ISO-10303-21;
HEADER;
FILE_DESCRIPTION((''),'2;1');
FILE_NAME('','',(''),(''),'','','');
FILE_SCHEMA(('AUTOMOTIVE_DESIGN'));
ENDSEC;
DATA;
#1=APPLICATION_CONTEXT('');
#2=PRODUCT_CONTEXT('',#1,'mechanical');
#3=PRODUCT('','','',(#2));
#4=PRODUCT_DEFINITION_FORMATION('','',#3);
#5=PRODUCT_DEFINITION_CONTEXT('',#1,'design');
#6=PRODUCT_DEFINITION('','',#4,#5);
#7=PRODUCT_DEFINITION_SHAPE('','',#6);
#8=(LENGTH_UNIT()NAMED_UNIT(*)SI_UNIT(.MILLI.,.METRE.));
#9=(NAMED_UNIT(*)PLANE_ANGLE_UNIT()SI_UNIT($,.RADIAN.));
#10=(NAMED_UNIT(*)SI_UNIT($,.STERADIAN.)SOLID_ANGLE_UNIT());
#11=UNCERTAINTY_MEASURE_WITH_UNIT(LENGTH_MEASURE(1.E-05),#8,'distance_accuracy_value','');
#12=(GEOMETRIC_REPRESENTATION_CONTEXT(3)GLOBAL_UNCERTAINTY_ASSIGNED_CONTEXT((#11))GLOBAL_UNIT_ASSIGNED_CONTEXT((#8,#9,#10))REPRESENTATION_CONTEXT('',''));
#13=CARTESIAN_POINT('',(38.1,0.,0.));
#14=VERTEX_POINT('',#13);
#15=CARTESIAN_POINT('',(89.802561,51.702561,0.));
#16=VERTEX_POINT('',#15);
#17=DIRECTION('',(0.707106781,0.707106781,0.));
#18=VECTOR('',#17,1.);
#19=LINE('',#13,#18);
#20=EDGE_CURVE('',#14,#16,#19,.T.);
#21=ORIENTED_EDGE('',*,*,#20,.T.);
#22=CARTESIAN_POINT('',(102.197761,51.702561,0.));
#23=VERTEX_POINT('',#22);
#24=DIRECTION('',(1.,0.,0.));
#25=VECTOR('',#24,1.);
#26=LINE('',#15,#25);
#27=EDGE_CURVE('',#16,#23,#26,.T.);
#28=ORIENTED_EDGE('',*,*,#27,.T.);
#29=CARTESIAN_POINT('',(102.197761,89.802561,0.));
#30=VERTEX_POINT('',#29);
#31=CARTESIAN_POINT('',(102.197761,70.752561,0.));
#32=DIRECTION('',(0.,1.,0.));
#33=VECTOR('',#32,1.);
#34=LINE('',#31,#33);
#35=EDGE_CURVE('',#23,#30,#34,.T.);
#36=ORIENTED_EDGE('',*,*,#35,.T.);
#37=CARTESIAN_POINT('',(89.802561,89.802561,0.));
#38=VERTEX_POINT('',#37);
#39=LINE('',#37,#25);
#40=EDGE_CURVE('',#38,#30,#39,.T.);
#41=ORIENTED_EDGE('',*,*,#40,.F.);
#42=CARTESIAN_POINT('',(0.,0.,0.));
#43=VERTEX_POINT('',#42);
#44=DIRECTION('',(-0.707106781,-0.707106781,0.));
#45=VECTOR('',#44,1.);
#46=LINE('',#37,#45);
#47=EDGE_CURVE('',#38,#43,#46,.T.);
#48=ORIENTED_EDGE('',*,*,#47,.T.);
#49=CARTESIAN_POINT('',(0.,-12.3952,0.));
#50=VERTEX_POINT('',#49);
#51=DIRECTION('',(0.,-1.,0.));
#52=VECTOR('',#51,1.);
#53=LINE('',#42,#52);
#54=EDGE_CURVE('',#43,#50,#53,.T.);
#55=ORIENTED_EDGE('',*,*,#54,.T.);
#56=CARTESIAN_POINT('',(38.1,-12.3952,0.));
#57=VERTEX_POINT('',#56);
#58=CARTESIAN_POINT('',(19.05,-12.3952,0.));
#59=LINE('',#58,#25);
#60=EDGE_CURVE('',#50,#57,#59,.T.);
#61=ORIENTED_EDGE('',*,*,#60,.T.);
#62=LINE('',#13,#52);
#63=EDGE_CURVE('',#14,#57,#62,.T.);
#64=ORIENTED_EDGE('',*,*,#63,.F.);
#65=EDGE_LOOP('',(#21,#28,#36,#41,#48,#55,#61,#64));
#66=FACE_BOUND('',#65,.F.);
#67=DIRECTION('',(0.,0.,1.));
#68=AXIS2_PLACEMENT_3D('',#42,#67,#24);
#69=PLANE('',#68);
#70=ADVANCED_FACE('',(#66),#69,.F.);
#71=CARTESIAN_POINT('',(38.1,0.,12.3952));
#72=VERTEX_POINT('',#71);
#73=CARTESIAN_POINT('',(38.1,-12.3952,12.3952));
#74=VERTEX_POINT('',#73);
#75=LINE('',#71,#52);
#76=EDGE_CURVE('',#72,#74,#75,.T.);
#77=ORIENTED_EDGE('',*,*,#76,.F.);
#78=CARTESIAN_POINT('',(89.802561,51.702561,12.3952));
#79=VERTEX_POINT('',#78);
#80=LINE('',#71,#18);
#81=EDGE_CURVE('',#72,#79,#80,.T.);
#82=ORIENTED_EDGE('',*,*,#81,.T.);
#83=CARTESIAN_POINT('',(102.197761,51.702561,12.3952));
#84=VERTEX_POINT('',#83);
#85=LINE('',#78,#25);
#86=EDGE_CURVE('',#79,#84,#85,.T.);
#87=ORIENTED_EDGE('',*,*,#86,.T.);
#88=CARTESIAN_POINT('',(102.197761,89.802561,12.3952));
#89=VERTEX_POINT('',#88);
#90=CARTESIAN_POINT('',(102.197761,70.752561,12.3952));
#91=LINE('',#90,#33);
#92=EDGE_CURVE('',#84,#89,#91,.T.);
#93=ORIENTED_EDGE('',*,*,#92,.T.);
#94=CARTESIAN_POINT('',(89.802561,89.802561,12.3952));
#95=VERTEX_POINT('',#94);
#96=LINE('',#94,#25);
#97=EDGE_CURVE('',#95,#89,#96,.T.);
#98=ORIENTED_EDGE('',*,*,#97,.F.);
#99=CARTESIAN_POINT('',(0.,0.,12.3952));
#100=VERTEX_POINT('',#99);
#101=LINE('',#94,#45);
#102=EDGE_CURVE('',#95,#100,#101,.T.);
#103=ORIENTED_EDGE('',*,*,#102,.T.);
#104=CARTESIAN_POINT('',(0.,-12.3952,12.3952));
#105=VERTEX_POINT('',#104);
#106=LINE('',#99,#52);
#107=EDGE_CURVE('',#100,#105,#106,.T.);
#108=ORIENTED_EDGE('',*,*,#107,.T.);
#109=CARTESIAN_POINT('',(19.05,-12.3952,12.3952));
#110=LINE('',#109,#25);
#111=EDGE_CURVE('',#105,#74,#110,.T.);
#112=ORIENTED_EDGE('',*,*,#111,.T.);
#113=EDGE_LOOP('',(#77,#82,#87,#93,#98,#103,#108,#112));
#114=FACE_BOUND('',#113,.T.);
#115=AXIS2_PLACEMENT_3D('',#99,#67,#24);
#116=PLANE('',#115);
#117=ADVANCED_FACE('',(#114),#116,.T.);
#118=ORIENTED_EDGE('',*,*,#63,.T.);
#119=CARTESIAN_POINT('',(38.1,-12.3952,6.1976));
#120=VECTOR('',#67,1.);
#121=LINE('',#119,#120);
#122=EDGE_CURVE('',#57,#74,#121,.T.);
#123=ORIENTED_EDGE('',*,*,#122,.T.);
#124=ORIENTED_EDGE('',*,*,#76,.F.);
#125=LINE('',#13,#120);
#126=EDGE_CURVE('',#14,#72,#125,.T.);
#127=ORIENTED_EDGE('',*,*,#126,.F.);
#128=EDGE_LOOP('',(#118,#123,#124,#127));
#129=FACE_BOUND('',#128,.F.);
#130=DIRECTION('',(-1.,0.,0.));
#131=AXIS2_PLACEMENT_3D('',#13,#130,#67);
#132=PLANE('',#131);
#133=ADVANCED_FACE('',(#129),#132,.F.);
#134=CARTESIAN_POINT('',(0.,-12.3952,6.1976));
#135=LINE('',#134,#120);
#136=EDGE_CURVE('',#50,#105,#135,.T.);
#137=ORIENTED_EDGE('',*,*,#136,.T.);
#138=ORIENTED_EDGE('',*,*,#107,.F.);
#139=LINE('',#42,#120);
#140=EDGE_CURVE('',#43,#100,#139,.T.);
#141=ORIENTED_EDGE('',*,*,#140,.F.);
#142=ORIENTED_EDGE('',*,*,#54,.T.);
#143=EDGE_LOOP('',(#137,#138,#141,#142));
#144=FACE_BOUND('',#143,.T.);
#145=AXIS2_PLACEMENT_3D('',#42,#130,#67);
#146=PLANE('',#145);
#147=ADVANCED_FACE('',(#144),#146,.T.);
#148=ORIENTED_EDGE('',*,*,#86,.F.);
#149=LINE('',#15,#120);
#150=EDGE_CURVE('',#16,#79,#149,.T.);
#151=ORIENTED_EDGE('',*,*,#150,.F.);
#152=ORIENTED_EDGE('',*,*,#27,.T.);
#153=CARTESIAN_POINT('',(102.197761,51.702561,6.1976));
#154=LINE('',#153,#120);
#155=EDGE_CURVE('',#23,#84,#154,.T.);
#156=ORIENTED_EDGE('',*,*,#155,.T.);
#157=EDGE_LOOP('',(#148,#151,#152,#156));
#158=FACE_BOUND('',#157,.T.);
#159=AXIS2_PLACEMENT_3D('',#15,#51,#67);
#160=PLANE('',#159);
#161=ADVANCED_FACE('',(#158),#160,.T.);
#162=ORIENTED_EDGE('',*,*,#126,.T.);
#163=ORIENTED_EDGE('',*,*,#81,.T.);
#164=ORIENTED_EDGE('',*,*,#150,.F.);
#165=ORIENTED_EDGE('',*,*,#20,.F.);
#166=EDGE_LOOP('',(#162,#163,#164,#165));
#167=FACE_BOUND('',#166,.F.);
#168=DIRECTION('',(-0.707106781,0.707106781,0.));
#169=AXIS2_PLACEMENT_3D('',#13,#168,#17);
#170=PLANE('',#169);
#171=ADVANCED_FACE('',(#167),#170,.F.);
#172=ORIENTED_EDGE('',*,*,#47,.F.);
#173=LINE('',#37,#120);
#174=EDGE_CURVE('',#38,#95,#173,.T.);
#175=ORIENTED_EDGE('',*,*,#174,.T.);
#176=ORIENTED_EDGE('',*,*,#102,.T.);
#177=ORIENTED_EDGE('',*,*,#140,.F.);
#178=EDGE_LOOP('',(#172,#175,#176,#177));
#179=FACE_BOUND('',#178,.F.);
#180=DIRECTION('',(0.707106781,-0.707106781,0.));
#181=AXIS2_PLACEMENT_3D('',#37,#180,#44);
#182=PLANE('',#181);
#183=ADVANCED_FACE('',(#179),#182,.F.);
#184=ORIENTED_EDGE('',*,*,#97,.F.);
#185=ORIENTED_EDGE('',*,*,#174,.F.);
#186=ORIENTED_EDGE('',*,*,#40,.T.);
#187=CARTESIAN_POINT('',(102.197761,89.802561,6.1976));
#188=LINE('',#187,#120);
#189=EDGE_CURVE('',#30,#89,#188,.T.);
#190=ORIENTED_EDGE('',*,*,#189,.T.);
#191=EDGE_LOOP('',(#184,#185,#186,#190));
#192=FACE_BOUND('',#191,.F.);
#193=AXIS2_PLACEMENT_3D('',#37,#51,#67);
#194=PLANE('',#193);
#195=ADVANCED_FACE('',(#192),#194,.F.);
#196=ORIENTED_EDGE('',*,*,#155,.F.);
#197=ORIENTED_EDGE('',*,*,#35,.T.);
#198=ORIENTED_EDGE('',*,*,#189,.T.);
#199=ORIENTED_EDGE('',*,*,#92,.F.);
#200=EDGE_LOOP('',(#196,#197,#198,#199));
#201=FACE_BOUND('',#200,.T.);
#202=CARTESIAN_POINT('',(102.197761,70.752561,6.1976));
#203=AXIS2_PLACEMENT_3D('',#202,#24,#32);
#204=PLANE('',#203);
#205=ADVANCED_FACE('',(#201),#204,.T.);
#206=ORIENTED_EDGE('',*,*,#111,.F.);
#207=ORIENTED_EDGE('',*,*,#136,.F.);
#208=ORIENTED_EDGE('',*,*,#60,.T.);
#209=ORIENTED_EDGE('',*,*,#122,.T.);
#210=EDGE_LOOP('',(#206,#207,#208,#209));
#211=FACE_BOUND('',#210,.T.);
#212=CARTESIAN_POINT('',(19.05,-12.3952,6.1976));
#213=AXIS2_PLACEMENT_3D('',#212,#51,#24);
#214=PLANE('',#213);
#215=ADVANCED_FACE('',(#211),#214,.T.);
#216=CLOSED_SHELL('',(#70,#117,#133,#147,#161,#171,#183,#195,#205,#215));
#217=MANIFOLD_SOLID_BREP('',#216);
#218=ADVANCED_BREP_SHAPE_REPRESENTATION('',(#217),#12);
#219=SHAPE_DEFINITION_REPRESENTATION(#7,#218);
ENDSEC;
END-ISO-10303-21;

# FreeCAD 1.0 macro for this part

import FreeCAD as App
import Part
import Sketcher
from FreeCAD import Vector
Q = App.Units.Quantity


def add_polygon(sketch, points):
    """Adds a closed chain of lines whose ends are joined by coincident constraints."""
    first, n = sketch.GeometryCount, len(points)
    for a, b in zip(points, points[1:] + points[:1]):
        sketch.addGeometry(Part.LineSegment(App.Vector(*a, 0), App.Vector(*b, 0)), False)
    for i in range(n):
        sketch.addConstraint(Sketcher.Constraint("Coincident", first + i, 2, first + (i + 1) % n, 1))

doc = App.newDocument("Part")
body = doc.addObject("PartDesign::Body", "Body")

sketch1 = doc.addObject("Sketcher::SketchObject", "Sketch")
body.addObject(sketch1)
sketch1.AttachmentSupport = (doc.XY_Plane, [""])
sketch1.MapMode = "FlatFace"
add_polygon(sketch1, [(90, 90), (0, 0), (38, 0), (90, 52)])
sketch1.addConstraint(Sketcher.Constraint("Horizontal", 1))
sketch1.addConstraint(Sketcher.Constraint("Vertical", 3))
sketch1.addConstraint(Sketcher.Constraint("Coincident", 0, 2, -1, 1))
sketch1.addConstraint(Sketcher.Constraint("Parallel", 0, 2))
sketch1.addConstraint(Sketcher.Constraint("Equal", 1, 3))
sketch1.addConstraint(Sketcher.Constraint("Distance", 0, Q("5 in")))
sketch1.addConstraint(Sketcher.Constraint("DistanceX", 1, 1, 1, 2, Q("1.5 in")))
pad1 = doc.addObject("PartDesign::Pad", "Pad")
body.addObject(pad1)
pad1.Profile = sketch1
pad1.Length = Q("0.488 in")

sketch2 = doc.addObject("Sketcher::SketchObject", "Sketch001")
body.addObject(sketch2)
sketch2.AttachmentSupport = (doc.YZ_Plane, [""])
sketch2.MapMode = "FlatFace"
sketch2.AttachmentOffset = App.Placement(Vector(0, 0, 89.802561), App.Rotation())
add_polygon(sketch2, [(52, 12), (52, 0), (90, 0), (90, 12)])
sketch2.addConstraint(Sketcher.Constraint("Vertical", 0))
sketch2.addConstraint(Sketcher.Constraint("Horizontal", 1))
sketch2.addConstraint(Sketcher.Constraint("Vertical", 2))
sketch2.addConstraint(Sketcher.Constraint("Horizontal", 3))
sketch2.addConstraint(Sketcher.Constraint("PointOnObject", 0, 2, -1))
sketch2.addConstraint(Sketcher.Constraint("DistanceX", 1, 1, 1, 2, Q("1.5 in")))
sketch2.addConstraint(Sketcher.Constraint("DistanceY", 0, 2, 0, 1, Q("0.488 in")))
sketch2.addConstraint(Sketcher.Constraint("DistanceX", -1, 1, 0, 2, Q("51.702561 mm")))
pad2 = doc.addObject("PartDesign::Pad", "Pad001")
body.addObject(pad2)
pad2.Profile = sketch2
pad2.Length = Q("0.488 in")

sketch3 = doc.addObject("Sketcher::SketchObject", "Sketch002")
body.addObject(sketch3)
sketch3.AttachmentSupport = (doc.XZ_Plane, [""])
sketch3.MapMode = "FlatFace"
add_polygon(sketch3, [(0, 12), (0, 0), (38, 0), (38, 12)])
sketch3.addConstraint(Sketcher.Constraint("Vertical", 0))
sketch3.addConstraint(Sketcher.Constraint("Horizontal", 1))
sketch3.addConstraint(Sketcher.Constraint("Vertical", 2))
sketch3.addConstraint(Sketcher.Constraint("Horizontal", 3))
sketch3.addConstraint(Sketcher.Constraint("Coincident", 0, 2, -1, 1))
sketch3.addConstraint(Sketcher.Constraint("DistanceX", 1, 1, 1, 2, Q("1.5 in")))
sketch3.addConstraint(Sketcher.Constraint("DistanceY", 0, 2, 0, 1, Q("0.488 in")))
pad3 = doc.addObject("PartDesign::Pad", "Pad002")
body.addObject(pad3)
pad3.Profile = sketch3
pad3.Length = Q("0.488 in")

doc.recompute()
